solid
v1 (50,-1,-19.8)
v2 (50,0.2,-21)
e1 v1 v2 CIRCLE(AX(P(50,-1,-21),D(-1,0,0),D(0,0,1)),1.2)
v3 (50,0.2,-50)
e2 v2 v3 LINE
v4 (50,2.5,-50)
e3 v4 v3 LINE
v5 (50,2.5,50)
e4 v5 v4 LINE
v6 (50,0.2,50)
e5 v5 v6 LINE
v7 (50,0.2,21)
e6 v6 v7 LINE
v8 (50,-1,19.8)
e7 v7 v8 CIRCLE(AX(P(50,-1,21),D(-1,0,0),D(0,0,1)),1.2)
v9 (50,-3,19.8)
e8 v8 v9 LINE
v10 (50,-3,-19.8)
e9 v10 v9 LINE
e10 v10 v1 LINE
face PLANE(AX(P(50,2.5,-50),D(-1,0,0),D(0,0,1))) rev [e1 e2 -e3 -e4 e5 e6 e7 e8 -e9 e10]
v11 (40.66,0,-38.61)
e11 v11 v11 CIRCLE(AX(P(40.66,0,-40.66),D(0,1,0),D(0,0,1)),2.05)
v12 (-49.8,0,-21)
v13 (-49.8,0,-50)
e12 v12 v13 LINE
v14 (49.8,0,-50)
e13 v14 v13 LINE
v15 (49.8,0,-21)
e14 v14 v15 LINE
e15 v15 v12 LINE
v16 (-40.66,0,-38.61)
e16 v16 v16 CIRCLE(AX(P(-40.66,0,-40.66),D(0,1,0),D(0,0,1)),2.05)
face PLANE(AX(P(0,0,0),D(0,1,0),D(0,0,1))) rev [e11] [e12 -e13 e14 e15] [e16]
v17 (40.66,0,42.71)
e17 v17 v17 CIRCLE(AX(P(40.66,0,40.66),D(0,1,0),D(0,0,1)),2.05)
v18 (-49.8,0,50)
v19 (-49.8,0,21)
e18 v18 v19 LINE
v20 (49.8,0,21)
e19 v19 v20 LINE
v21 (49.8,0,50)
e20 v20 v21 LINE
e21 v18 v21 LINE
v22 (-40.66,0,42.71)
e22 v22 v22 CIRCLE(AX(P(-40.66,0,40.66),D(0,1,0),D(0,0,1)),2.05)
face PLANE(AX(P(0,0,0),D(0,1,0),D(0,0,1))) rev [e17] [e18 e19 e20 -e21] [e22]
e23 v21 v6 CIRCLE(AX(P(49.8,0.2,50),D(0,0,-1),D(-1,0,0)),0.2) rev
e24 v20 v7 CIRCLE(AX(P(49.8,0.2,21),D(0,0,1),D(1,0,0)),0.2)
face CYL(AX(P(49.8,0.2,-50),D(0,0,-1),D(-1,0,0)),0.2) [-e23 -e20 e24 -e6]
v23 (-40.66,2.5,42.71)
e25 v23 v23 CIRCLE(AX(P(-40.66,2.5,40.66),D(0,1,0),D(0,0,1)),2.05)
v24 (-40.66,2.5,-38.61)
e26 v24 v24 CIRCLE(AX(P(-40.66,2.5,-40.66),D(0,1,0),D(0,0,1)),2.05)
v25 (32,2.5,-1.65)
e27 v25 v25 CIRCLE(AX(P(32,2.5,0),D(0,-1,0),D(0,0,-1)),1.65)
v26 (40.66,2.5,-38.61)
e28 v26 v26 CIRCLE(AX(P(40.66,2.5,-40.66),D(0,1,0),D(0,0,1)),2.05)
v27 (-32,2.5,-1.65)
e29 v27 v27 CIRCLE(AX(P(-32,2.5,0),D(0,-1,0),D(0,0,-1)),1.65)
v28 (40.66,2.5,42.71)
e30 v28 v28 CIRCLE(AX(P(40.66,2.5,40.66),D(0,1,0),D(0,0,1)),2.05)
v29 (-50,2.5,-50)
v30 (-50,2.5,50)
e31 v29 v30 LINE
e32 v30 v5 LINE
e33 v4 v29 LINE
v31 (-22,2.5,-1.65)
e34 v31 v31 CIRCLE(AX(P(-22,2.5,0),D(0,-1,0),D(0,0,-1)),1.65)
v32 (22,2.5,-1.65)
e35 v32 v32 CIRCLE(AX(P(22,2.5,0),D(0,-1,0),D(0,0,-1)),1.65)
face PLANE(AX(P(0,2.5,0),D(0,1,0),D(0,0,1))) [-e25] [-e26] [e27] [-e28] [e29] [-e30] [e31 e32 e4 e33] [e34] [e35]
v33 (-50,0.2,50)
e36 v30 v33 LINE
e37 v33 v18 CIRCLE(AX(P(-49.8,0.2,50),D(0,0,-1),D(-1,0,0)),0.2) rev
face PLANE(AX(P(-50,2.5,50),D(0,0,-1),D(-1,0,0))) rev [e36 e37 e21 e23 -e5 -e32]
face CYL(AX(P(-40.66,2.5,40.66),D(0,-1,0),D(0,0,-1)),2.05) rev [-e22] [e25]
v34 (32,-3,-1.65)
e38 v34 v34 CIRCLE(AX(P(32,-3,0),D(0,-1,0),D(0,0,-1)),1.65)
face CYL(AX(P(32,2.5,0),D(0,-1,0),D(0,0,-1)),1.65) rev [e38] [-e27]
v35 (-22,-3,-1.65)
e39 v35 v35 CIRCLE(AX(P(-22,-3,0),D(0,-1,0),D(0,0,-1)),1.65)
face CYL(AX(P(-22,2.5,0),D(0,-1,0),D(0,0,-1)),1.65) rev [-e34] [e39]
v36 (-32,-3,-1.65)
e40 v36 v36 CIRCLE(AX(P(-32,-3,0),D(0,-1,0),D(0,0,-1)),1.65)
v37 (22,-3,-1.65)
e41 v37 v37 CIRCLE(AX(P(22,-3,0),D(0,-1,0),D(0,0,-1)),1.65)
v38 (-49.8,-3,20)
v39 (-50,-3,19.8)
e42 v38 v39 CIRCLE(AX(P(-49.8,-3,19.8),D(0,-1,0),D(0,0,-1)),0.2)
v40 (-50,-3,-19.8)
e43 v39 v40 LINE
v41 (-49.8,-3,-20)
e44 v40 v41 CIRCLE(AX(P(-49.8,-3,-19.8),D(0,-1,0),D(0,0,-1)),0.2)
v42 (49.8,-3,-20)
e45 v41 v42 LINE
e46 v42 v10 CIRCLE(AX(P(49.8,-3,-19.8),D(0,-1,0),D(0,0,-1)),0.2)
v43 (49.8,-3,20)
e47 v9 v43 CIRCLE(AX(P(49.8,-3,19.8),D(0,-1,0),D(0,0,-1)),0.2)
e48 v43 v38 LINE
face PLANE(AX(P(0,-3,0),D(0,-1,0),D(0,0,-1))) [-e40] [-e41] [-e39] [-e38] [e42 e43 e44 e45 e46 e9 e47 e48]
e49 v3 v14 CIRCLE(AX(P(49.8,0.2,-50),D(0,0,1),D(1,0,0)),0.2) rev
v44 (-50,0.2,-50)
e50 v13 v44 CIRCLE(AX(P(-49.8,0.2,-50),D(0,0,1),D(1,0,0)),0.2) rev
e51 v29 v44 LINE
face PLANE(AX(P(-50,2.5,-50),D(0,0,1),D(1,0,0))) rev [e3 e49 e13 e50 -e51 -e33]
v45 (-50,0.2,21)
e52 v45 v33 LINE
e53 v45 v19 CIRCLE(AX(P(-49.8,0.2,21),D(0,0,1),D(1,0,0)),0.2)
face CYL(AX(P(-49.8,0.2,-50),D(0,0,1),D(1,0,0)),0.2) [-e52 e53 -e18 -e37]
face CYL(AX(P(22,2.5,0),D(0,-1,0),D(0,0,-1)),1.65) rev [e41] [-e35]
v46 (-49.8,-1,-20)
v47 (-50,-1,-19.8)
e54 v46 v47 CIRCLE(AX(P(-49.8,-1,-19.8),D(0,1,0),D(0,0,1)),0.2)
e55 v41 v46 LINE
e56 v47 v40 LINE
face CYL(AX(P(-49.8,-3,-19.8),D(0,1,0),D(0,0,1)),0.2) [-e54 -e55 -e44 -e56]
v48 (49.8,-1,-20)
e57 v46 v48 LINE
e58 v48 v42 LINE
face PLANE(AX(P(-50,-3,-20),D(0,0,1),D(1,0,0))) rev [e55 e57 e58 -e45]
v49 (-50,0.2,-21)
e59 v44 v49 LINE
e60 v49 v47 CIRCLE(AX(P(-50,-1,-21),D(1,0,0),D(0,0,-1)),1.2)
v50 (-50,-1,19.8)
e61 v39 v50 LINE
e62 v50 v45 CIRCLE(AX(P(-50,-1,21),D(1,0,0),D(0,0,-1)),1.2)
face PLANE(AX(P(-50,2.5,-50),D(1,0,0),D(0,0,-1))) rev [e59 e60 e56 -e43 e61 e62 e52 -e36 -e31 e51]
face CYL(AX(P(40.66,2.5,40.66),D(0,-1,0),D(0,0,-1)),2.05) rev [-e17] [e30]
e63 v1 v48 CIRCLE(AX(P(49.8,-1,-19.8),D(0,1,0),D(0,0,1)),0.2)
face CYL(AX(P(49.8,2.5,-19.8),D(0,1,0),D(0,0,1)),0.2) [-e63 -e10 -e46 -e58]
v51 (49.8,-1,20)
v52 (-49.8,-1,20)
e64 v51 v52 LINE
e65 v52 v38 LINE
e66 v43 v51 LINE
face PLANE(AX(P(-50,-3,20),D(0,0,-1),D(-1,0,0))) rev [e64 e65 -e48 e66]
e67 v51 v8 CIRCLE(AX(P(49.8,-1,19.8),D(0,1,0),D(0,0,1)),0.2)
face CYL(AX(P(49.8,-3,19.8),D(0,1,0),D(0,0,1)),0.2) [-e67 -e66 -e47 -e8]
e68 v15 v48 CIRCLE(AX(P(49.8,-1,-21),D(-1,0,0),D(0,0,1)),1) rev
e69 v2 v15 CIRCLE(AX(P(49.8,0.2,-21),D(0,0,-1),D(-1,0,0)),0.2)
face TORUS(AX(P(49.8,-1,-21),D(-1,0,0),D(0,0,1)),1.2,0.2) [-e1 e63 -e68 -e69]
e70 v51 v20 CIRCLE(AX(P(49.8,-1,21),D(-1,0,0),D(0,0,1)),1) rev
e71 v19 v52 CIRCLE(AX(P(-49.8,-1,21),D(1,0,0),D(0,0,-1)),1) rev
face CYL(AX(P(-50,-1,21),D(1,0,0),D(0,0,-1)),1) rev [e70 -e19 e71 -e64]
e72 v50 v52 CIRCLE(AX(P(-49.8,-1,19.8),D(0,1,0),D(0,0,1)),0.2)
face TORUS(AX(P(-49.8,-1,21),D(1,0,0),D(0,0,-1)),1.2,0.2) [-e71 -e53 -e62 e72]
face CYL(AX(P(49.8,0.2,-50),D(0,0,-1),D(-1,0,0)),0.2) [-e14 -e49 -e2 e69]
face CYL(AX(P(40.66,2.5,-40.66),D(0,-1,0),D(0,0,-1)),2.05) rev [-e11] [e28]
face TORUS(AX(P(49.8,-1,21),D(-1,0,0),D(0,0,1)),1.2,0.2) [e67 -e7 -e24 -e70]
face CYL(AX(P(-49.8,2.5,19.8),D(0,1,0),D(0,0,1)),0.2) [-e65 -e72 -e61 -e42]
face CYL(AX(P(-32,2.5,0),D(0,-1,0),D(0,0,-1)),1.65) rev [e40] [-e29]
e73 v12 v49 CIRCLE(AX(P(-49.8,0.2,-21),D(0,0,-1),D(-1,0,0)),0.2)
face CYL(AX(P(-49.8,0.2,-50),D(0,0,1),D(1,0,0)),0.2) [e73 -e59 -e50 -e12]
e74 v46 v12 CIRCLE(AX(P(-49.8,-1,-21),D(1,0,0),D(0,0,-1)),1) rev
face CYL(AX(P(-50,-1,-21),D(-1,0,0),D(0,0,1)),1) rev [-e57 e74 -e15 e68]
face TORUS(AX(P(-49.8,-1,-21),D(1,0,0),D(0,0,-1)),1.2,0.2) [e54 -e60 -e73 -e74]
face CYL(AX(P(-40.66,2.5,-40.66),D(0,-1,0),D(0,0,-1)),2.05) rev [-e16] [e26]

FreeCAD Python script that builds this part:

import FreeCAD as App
import Part
import Sketcher
from FreeCAD import Vector
Q = App.Units.Quantity


def edges_at(feature, points):
    """Names of the edges that pass closest to the given points."""
    edges = feature.Shape.Edges
    near = lambda p: min(range(len(edges)), key=lambda i: edges[i].distToShape(Part.Vertex(*p))[0])
    return sorted({f"Edge{near(p) + 1}" for p in points})


def add_polygon(sketch, points):
    """Adds a closed chain of lines whose ends are joined by coincident constraints."""
    first, n = sketch.GeometryCount, len(points)
    for a, b in zip(points, points[1:] + points[:1]):
        sketch.addGeometry(Part.LineSegment(App.Vector(*a, 0), App.Vector(*b, 0)), False)
    for i in range(n):
        sketch.addConstraint(Sketcher.Constraint("Coincident", first + i, 2, first + (i + 1) % n, 1))

doc = App.newDocument("Part")
body = doc.addObject("PartDesign::Body", "Body")

# Sketch on XZ plane
sketch1 = body.newObject("Sketcher::SketchObject", "Sketch")
sketch1.AttachmentSupport = (doc.getObject("XZ_Plane"), [""])
sketch1.MapMode = "FlatFace"
add_polygon(sketch1, [(-50, -50), (-50, 50), (50, 50), (50, -50)])  # lines 0-3
sketch1.addGeometry(Part.Circle(Vector(-40.66, 40.66, 0), Vector(0, 0, 1), 2.05), False)  # 4
sketch1.addGeometry(Part.Circle(Vector(40.66, 40.66, 0), Vector(0, 0, 1), 2.05), False)  # 5
sketch1.addGeometry(Part.Circle(Vector(-40.66, -40.66, 0), Vector(0, 0, 1), 2.05), False)  # 6
sketch1.addGeometry(Part.Circle(Vector(40.66, -40.66, 0), Vector(0, 0, 1), 2.05), False)  # 7
sketch1.addConstraint([
    Sketcher.Constraint("Vertical", 0),
    Sketcher.Constraint("Horizontal", 1),
    Sketcher.Constraint("Vertical", 2),
    Sketcher.Constraint("Horizontal", 3),
    Sketcher.Constraint("Equal", 4, 5),
    Sketcher.Constraint("Equal", 5, 6),
    Sketcher.Constraint("Equal", 6, 7),
    Sketcher.Constraint("Symmetric", 5, 3, 6, 3, -1, 1),
    Sketcher.Constraint("Symmetric", 4, 3, 7, 3, -1, 1),
    Sketcher.Constraint("Symmetric", 0, 2, 2, 2, -1, 1),
    Sketcher.Constraint("Symmetric", 4, 3, 5, 3, -2),
    Sketcher.Constraint("Equal", 3, 0),
    Sketcher.Constraint("Diameter", 4, Q("4.1 mm")),
    Sketcher.Constraint("DistanceX", 1, 1, 1, 2, Q("100 mm")),
    Sketcher.Constraint("DistanceX", 4, 3, -1, 1, Q("40.66 mm")),
    Sketcher.Constraint("DistanceY", -1, 1, 4, 3, Q("40.66 mm")),
])
pad1 = body.newObject("PartDesign::Pad", "Pad")
pad1.Profile = sketch1
pad1.Length = 2.5
pad1.Reversed = True

# Sketch on XZ plane
sketch2 = body.newObject("Sketcher::SketchObject", "Sketch001")
sketch2.AttachmentSupport = (doc.getObject("XZ_Plane"), [""])
sketch2.MapMode = "FlatFace"
add_polygon(sketch2, [(-50, 20), (-50, -20), (50, -20), (50, 20)])  # lines 0-3
sketch2.addConstraint([
    Sketcher.Constraint("Vertical", 0),
    Sketcher.Constraint("Horizontal", 1),
    Sketcher.Constraint("Vertical", 2),
    Sketcher.Constraint("Horizontal", 3),
    Sketcher.Constraint("Symmetric", 0, 2, 2, 2, -1, 1),
    Sketcher.Constraint("DistanceX", 1, 1, 1, 2, Q("100 mm")),
    Sketcher.Constraint("DistanceY", 0, 2, 0, 1, Q("40 mm")),
])
pad2 = body.newObject("PartDesign::Pad", "Pad001")
pad2.Profile = sketch2
pad2.Length = 3
doc.recompute()

fillet = body.newObject("PartDesign::Fillet", "Fillet")
fillet.Base = (pad2, edges_at(pad2, [(0, 0, 20), (0, 0, -20)]))
fillet.Radius = 1
doc.recompute()

fillet2 = body.newObject("PartDesign::Fillet", "Fillet001")
fillet2.Base = (fillet, edges_at(fillet, [
    (50, -2, -20),
    (50, -2, 20),
    (-50, -2, 20),
    (-50, -2, -20),
    (50, 0, -35.5),
    (-50, 0, 35.5),
    (50, -0.293, -20.293),
    (-50, -0.293, -20.293),
    (-50, -0.293, 20.293),
    (50, -0.293, 20.293),
    (-50, 0, -35.5),
    (50, 0, 35.5),
]))
fillet2.Radius = 0.2

# Sketch on XZ plane
sketch3 = body.newObject("Sketcher::SketchObject", "Sketch002")
sketch3.AttachmentSupport = (doc.getObject("XZ_Plane"), [""])
sketch3.MapMode = "FlatFace"
sketch3.AttachmentOffset = App.Placement(Vector(0, 0, 3), App.Rotation())
sketch3.addGeometry([
    Part.Circle(Vector(-32, 0, 0), Vector(0, 0, 1), 1.65),
    Part.Circle(Vector(-22, 0, 0), Vector(0, 0, 1), 1.65),
    Part.Circle(Vector(22, 0, 0), Vector(0, 0, 1), 1.65),
    Part.Circle(Vector(32, 0, 0), Vector(0, 0, 1), 1.65),
], False)
sketch3.addConstraint([
    Sketcher.Constraint("Equal", 0, 1),
    Sketcher.Constraint("Equal", 1, 2),
    Sketcher.Constraint("Equal", 2, 3),
    Sketcher.Constraint("Symmetric", 1, 3, 2, 3, -1, 1),
    Sketcher.Constraint("Symmetric", 0, 3, 3, 3, -1, 1),
    Sketcher.Constraint("PointOnObject", 0, 3, -1),
    Sketcher.Constraint("PointOnObject", 1, 3, -1),
    Sketcher.Constraint("Diameter", 0, Q("3.3 mm")),
    Sketcher.Constraint("DistanceX", 0, 3, -1, 1, Q("32 mm")),
    Sketcher.Constraint("DistanceX", 1, 3, -1, 1, Q("22 mm")),
])
pocket1 = body.newObject("PartDesign::Pocket", "Pocket")
pocket1.Profile = sketch3
pocket1.Type = "ThroughAll"

doc.recompute()
